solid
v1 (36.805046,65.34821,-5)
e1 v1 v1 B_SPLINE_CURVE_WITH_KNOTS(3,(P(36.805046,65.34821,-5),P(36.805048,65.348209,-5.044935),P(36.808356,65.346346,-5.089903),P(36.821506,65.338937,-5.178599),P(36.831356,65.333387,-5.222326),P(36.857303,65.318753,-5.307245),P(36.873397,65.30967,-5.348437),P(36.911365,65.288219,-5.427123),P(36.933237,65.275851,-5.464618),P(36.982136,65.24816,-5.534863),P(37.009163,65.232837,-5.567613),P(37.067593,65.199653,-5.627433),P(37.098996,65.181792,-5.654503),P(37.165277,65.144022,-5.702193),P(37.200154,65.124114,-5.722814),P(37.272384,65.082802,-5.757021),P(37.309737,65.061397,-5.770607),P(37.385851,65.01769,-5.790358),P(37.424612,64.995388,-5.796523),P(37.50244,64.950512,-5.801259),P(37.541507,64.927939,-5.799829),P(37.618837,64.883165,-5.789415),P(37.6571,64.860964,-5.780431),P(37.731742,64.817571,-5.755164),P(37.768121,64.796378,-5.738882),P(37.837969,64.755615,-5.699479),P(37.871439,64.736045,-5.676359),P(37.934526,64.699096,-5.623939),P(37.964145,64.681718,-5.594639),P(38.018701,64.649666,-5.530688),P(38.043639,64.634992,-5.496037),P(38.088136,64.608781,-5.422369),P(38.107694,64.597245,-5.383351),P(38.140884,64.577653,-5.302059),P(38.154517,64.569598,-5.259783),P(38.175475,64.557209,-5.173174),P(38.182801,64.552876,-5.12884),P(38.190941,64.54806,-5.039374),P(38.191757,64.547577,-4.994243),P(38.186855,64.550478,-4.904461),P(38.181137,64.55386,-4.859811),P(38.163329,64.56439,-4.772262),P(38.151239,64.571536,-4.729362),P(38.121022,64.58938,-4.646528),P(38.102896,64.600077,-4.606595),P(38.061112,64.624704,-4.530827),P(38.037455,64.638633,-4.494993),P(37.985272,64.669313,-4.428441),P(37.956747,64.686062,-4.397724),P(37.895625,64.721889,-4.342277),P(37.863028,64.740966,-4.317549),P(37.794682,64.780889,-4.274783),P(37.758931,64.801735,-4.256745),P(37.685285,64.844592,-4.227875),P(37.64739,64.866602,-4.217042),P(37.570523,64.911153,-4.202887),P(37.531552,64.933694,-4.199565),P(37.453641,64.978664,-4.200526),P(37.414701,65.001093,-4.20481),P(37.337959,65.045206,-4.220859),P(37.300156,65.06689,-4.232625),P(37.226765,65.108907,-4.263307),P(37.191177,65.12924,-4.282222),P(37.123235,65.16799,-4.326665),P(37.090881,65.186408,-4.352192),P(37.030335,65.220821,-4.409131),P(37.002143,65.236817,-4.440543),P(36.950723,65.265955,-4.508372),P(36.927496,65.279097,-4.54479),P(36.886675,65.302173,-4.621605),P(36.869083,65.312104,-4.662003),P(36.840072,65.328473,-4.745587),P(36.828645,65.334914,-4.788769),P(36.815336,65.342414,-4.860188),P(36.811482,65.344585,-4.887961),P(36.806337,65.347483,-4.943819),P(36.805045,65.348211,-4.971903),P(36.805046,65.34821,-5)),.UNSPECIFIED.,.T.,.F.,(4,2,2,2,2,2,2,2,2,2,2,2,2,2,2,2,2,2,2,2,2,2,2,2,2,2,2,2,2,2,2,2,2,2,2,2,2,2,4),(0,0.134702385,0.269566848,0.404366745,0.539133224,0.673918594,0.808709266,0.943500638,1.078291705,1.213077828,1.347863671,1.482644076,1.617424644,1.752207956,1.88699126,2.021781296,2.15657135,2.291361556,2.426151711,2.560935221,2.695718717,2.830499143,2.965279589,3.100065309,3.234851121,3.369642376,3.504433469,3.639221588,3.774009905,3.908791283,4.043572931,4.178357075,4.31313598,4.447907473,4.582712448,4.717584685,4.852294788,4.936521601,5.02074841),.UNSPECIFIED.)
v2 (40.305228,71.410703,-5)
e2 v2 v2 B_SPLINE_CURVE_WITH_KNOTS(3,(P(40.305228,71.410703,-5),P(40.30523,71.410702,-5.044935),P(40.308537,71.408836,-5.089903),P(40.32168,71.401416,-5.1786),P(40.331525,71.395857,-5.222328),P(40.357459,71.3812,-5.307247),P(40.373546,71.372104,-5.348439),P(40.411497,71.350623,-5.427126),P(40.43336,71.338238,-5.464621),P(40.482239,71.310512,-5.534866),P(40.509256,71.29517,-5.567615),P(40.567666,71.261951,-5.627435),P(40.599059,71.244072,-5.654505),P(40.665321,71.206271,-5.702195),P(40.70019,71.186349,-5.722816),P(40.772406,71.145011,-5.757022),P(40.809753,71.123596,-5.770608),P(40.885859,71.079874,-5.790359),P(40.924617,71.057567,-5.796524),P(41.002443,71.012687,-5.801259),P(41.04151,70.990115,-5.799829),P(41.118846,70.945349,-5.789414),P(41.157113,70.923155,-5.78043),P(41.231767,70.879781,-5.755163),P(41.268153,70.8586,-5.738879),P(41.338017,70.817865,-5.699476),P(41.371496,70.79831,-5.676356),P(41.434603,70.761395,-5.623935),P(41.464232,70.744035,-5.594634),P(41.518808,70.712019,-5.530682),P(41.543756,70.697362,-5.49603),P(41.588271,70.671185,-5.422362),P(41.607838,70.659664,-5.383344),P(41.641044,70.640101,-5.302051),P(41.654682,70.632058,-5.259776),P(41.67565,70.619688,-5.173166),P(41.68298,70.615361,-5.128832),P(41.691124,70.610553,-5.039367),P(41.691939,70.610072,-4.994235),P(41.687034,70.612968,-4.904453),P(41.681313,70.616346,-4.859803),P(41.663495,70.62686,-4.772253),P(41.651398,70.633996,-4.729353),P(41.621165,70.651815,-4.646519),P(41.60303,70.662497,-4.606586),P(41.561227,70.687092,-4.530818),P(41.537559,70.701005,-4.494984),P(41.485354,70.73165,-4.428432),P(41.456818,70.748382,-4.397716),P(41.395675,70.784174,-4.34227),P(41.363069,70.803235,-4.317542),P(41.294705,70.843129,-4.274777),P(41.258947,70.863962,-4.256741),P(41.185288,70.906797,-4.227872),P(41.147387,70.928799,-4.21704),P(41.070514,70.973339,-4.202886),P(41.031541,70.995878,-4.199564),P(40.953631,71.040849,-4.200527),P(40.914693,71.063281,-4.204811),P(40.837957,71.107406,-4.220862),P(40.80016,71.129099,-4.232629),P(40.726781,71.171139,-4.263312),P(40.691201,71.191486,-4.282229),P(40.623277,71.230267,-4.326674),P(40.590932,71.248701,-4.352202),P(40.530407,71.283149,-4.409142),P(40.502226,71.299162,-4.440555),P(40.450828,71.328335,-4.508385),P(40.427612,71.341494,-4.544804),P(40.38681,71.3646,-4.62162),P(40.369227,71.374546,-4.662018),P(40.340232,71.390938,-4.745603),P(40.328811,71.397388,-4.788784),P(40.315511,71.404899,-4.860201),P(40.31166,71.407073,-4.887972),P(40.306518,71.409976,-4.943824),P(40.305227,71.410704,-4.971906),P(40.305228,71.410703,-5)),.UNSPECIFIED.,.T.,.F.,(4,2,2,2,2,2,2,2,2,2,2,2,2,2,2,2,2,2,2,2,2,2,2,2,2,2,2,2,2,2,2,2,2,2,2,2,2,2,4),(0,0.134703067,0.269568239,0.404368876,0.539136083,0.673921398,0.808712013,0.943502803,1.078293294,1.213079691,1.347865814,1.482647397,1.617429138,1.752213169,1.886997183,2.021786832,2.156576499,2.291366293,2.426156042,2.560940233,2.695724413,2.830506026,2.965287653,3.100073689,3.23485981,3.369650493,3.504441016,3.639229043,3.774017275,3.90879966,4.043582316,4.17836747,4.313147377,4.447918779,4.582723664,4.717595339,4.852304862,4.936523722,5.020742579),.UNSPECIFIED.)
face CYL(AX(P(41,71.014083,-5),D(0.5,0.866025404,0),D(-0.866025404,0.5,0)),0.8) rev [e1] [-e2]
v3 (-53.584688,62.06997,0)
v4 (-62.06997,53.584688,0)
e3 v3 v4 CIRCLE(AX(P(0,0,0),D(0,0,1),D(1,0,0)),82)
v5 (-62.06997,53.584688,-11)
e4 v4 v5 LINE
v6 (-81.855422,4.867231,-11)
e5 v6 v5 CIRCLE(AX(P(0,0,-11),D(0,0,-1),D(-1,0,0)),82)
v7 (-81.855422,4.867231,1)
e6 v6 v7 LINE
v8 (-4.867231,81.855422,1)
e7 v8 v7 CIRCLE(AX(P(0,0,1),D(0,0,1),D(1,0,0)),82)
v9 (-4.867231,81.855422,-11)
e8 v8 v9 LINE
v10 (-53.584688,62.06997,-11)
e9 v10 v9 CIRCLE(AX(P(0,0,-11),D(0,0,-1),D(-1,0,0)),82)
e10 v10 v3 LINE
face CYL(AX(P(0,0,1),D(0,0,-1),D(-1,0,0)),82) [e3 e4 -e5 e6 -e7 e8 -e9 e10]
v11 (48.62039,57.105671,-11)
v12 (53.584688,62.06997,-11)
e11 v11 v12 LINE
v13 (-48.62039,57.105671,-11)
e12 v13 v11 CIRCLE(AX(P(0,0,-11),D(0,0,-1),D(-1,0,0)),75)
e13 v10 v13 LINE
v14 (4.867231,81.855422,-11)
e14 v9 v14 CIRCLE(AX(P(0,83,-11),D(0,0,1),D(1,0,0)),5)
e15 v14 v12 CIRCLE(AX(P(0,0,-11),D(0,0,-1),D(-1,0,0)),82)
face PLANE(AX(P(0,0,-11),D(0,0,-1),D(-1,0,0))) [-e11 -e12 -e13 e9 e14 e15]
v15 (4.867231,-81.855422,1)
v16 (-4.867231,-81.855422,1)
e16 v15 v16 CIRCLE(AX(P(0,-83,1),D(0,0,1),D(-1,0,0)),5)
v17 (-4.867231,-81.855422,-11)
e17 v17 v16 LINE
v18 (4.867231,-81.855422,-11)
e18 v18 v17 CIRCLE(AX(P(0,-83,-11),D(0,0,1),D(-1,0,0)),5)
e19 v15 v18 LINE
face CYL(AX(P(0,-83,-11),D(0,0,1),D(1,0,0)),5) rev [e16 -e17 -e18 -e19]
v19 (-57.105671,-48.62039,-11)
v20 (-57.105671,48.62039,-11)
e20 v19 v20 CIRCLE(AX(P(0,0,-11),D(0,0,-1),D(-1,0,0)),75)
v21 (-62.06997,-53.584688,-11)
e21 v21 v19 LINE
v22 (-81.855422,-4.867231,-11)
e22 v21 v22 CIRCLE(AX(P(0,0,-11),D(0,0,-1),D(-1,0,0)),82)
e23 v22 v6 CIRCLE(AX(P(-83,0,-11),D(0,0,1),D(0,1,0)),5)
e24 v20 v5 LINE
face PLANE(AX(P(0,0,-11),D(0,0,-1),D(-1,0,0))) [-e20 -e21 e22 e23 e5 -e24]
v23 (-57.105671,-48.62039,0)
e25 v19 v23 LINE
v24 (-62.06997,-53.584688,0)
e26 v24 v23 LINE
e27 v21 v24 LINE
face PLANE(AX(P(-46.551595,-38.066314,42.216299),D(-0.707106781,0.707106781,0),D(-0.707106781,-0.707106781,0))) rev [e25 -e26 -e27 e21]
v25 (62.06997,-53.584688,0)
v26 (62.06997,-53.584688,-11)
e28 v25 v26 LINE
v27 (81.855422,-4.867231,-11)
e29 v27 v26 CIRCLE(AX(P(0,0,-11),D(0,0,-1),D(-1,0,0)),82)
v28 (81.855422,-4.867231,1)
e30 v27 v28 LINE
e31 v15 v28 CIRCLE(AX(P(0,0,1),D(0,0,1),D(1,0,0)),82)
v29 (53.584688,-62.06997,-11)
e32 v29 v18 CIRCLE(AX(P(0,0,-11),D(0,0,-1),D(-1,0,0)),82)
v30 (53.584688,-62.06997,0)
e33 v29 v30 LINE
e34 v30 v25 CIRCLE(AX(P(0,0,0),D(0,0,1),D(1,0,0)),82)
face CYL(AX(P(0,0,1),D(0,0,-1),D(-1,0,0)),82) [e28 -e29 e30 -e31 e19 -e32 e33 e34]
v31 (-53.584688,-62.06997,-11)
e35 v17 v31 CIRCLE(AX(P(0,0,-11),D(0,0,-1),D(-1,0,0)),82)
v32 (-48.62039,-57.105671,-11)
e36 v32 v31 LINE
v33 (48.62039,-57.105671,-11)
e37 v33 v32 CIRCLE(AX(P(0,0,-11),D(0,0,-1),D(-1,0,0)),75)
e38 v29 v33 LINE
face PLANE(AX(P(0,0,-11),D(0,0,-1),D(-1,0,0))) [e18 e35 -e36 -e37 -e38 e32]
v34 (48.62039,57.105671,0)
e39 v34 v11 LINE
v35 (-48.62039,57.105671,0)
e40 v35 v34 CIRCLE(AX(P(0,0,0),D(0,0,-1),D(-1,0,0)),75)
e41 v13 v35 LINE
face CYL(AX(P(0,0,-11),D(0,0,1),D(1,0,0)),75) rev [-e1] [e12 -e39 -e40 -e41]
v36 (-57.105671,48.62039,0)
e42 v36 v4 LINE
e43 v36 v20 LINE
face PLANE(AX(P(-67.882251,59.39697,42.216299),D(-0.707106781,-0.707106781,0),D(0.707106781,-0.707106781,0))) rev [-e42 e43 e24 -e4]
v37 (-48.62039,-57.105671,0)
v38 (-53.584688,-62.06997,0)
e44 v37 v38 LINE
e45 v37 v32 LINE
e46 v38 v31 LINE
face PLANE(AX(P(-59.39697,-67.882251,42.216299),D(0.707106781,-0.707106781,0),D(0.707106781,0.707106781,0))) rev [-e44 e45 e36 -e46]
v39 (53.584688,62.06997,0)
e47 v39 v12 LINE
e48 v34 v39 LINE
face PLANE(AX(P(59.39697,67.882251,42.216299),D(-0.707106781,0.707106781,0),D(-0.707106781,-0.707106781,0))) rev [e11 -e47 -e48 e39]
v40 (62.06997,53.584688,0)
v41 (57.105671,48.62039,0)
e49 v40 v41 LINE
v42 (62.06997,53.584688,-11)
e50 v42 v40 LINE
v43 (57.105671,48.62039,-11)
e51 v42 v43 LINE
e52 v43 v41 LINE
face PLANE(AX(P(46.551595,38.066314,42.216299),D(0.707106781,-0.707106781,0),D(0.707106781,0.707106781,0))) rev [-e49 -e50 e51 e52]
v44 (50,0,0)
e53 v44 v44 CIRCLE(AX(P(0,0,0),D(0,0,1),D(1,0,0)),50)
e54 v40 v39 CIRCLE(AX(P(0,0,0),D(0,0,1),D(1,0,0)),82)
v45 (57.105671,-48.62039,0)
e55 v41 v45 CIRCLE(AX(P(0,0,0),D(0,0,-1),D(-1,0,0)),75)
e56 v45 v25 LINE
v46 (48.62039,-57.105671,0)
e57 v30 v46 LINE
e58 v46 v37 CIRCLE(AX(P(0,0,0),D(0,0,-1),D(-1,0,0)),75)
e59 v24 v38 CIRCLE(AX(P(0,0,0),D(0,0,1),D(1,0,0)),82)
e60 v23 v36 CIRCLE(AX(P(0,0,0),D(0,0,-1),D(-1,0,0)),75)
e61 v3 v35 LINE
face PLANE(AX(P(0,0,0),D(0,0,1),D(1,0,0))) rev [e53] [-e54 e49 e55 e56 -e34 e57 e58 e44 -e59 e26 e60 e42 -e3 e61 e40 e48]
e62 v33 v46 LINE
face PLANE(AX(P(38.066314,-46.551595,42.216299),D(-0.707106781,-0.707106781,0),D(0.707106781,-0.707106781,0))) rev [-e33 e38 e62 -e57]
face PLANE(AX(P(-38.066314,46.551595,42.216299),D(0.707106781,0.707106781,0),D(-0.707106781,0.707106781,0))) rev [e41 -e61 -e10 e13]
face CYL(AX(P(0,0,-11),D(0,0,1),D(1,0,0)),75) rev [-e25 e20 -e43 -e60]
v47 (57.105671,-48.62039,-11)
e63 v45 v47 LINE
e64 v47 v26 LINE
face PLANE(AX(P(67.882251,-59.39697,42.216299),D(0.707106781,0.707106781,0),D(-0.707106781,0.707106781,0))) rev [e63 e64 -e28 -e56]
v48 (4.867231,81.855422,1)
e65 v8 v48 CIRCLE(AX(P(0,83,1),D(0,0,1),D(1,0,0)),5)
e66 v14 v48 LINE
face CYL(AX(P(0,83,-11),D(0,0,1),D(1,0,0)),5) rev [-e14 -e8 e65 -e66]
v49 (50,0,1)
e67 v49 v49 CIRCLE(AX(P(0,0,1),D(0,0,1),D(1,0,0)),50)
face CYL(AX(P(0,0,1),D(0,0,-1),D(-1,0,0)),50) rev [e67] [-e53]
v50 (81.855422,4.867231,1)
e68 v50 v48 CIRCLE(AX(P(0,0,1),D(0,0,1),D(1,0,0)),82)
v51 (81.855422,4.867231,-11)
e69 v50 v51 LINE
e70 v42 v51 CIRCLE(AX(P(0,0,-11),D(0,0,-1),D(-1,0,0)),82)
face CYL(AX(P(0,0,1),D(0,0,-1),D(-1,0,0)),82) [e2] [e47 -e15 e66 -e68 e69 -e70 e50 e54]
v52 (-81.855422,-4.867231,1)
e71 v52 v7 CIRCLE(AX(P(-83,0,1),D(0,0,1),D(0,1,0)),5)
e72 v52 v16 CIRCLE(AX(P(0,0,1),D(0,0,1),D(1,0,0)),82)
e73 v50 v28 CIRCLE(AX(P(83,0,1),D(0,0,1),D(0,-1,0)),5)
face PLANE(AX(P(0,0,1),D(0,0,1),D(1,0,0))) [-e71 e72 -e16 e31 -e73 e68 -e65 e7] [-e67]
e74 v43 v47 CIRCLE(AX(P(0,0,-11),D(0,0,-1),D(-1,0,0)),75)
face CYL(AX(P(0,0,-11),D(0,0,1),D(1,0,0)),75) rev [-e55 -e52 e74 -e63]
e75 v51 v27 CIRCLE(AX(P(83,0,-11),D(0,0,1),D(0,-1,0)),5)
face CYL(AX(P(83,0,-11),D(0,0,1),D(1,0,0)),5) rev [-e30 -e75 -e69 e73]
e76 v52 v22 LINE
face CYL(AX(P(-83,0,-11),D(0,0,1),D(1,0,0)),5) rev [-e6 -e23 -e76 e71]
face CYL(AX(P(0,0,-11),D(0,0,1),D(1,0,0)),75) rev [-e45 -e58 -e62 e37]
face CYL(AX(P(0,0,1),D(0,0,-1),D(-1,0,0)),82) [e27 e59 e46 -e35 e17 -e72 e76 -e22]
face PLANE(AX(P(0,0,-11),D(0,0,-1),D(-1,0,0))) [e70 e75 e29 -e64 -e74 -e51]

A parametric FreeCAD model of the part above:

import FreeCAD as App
import Part
import Sketcher
Q = App.Units.Quantity


def add_polygon(sketch, points):
    """Adds a closed chain of lines whose ends are joined by coincident constraints."""
    first, n = sketch.GeometryCount, len(points)
    for a, b in zip(points, points[1:] + points[:1]):
        sketch.addGeometry(Part.LineSegment(App.Vector(*a, 0), App.Vector(*b, 0)), False)
    for i in range(n):
        sketch.addConstraint(Sketcher.Constraint("Coincident", first + i, 2, first + (i + 1) % n, 1))

doc = App.newDocument("Part")
body = doc.addObject("PartDesign::Body", "Body")

sketch1 = body.newObject("Sketcher::SketchObject", "Sketch")
sketch1.AttachmentSupport = (doc.getObject("XY_Plane"), [""])
sketch1.MapMode = "FlatFace"
sketch1.addGeometry(Part.Circle(App.Vector(0, 0, 0), App.Vector(0, 0, 1), 82), False)
sketch1.addGeometry(Part.Circle(App.Vector(0, 0, 0), App.Vector(0, 0, 1), 50), False)
sketch1.addConstraint(Sketcher.Constraint("Coincident", 0, 3, -1, 1))
sketch1.addConstraint(Sketcher.Constraint("Coincident", 1, 3, -1, 1))
sketch1.addConstraint(Sketcher.Constraint("Diameter", 0, 164.0))
sketch1.addConstraint(Sketcher.Constraint("Diameter", 1, 100.0))
pad1 = body.newObject("PartDesign::Pad", "Pad")
pad1.Profile = sketch1
pad1.Length = 1

sketch2 = body.newObject("Sketcher::SketchObject", "Sketch001")
sketch2.AttachmentSupport = (doc.getObject("XY_Plane"), [""])
sketch2.MapMode = "FlatFace"
sketch2.AttachmentOffset = App.Placement(App.Vector(0, 0, -11), App.Rotation())
sketch2.addGeometry(Part.Circle(App.Vector(0, 0, 0), App.Vector(0, 0, 1), 82), False)
sketch2.addGeometry(Part.Circle(App.Vector(0, 0, 0), App.Vector(0, 0, 1), 75), False)
sketch2.addConstraint(Sketcher.Constraint("Coincident", 0, 3, -1, 1))
sketch2.addConstraint(Sketcher.Constraint("Coincident", 1, 3, -1, 1))
sketch2.addConstraint(Sketcher.Constraint("Diameter", 0, 164.0))
sketch2.addConstraint(Sketcher.Constraint("Diameter", 1, 150.0))
pad2 = body.newObject("PartDesign::Pad", "Pad001")
pad2.Profile = sketch2
pad2.Length = 11

sketch3 = body.newObject("Sketcher::SketchObject", "Sketch002")
sketch3.AttachmentSupport = (doc.getObject("XY_Plane"), [""])
sketch3.MapMode = "FlatFace"
sketch3.AttachmentOffset = App.Placement(App.Vector(0, 0, 1), App.Rotation())
sketch3.addGeometry(Part.Circle(App.Vector(0, 83, 0), App.Vector(0, 0, 1), 5), False)
sketch3.addConstraint(Sketcher.Constraint("PointOnObject", 0, 3, -2))
sketch3.addConstraint(Sketcher.Constraint("Diameter", 0, 10.0))
sketch3.addConstraint(Sketcher.Constraint("DistanceY", -1, 1, 0, 3, 83.0))
pocket1 = body.newObject("PartDesign::Pocket", "Pocket")
pocket1.Profile = sketch3
pocket1.Type = "ThroughAll"
doc.recompute()

polarpattern = body.newObject("PartDesign::PolarPattern", "PolarPattern")
polarpattern.Originals = [pocket1]
polarpattern.Axis = (doc.getObject("Z_Axis"), [""])
polarpattern.Angle = 360
polarpattern.Occurrences = 4
body.Tip = polarpattern

sketch4 = body.newObject("Sketcher::SketchObject", "Sketch003")
sketch4.AttachmentSupport = (doc.getObject("XY_Plane"), [""])
sketch4.MapMode = "FlatFace"
sketch4.AttachmentOffset = App.Placement(App.Vector(0, 0, -11), App.Rotation())
add_polygon(sketch4, [(-59.467915, 67.953196), (-38.066314, 46.551595), (-46.551595, 38.066314), (-67.882251, 59.39697)])
sketch4.addConstraint(Sketcher.Constraint("Perpendicular", 0, 1))
sketch4.addConstraint(Sketcher.Constraint("Perpendicular", 1, 2))
sketch4.addConstraint(Sketcher.Constraint("Angle", 0, Q("-45 deg")))
sketch4.addConstraint(Sketcher.Constraint("Distance", 1, 12.0))
sketch4.addConstraint(Sketcher.Constraint("DistanceX", 3, 2, 0, 2, 21.401601))
sketch4.addConstraint(Sketcher.Constraint("Distance", 3, 12.000419))
sketch4.addConstraint(Sketcher.Constraint("DistanceX", 2, 2, -1, 1, 67.882251))
sketch4.addConstraint(Sketcher.Constraint("DistanceY", -1, 1, 2, 2, 59.39697))
pocket2 = body.newObject("PartDesign::Pocket", "Pocket001")
pocket2.Profile = sketch4
pocket2.Length = 11
pocket2.Reversed = True
doc.recompute()

polarpattern2 = body.newObject("PartDesign::PolarPattern", "PolarPattern001")
polarpattern2.Originals = [pocket2]
polarpattern2.Axis = (doc.getObject("Z_Axis"), [""])
polarpattern2.Angle = 360
polarpattern2.Occurrences = 4
body.Tip = polarpattern2

sketch5 = body.newObject("Sketcher::SketchObject", "Sketch004")
sketch5.Placement = App.Placement(App.Vector(41, 71.014083, 0), App.Rotation(App.Vector(0.866025404, -0.5, 0), App.Vector(0, 0, -1), App.Vector(0.5, 0.866025404, 0), "ZXY"))
sketch5.addGeometry(Part.Circle(App.Vector(0, 5, 0), App.Vector(0, 0, 1), 0.8), False)
sketch5.addConstraint(Sketcher.Constraint("PointOnObject", 0, 3, -2))
sketch5.addConstraint(Sketcher.Constraint("Diameter", 0, 1.6))
sketch5.addConstraint(Sketcher.Constraint("DistanceY", -1, 1, 0, 3, 5.0))
doc.recompute()
hole = body.newObject("PartDesign::Hole", "Hole")
hole.Profile = sketch5
hole.ThreadType = "None"
hole.Diameter = 1.6
hole.DepthType = "Dimension"
hole.Depth = 10
hole.DrillPoint = "Angled"
hole.DrillPointAngle = 118

doc.recompute()
